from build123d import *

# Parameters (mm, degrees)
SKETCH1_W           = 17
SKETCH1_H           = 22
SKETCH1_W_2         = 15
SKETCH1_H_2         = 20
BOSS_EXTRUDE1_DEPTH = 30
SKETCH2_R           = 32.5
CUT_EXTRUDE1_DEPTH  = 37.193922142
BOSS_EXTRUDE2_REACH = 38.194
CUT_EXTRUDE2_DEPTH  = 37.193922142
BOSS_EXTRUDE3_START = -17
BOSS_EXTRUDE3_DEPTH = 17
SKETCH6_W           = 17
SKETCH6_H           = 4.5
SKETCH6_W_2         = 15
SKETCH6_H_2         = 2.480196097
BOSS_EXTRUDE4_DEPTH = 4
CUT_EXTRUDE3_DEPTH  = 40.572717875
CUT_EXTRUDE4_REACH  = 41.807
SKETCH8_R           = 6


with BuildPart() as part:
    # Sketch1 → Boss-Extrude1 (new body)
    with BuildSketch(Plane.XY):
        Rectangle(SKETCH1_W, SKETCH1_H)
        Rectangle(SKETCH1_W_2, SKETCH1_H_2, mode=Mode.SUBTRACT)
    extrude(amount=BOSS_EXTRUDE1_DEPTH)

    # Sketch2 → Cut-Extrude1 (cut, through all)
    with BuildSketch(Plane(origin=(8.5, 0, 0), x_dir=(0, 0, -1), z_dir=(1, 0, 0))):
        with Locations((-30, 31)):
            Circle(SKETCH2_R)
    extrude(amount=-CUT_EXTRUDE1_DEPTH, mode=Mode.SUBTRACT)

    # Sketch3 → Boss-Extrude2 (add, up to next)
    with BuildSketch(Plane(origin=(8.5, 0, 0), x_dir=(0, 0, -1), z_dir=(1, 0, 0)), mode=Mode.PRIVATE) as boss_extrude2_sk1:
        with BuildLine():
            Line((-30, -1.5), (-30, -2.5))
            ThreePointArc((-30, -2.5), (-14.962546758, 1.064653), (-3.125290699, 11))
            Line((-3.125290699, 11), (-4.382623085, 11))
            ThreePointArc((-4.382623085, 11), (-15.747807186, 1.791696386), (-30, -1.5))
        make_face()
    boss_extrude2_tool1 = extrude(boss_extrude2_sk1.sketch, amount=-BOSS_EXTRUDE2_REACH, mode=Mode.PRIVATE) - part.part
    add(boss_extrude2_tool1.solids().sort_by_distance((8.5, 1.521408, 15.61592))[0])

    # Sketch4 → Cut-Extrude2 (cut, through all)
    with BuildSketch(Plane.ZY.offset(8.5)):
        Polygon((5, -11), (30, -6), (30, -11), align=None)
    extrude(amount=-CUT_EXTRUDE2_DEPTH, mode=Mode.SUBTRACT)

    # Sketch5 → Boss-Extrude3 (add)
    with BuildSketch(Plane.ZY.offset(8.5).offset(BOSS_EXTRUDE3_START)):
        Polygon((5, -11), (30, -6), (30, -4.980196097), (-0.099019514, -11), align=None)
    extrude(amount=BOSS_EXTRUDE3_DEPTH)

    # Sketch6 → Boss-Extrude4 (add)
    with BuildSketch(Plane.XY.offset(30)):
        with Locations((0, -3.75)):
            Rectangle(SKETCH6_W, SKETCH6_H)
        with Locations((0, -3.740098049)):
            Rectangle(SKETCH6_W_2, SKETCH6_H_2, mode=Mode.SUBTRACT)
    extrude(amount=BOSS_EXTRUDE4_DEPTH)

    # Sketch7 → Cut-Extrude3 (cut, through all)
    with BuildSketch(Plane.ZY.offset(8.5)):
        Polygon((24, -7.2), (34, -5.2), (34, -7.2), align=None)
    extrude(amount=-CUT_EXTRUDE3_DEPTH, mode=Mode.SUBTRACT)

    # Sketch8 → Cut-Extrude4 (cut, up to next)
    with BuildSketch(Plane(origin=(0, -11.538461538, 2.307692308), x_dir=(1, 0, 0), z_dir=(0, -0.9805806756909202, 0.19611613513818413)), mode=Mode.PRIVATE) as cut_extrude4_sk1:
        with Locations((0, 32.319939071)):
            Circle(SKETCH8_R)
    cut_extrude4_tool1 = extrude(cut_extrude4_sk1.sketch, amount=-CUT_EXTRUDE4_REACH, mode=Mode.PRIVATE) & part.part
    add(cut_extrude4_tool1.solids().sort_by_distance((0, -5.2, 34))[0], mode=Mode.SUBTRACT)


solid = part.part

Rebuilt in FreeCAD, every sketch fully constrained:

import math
import FreeCAD as App
import Part
import Sketcher

V = App.Vector


def add_polygon(sketch, points):
    """Adds a closed chain of lines whose ends are joined by coincident constraints."""
    first, n = sketch.GeometryCount, len(points)
    for a, b in zip(points, points[1:] + points[:1]):
        sketch.addGeometry(Part.LineSegment(App.Vector(*a, 0), App.Vector(*b, 0)), False)
    for i in range(n):
        sketch.addConstraint(Sketcher.Constraint("Coincident", first + i, 2, first + (i + 1) % n, 1))

doc = App.newDocument("Part")
params = doc.addObject("Spreadsheet::Sheet", "Params")
for row, (alias, value) in enumerate([
    ("sketch1_width", "17 mm"),
    ("sketch1_width2", "15 mm"),
    ("sketch1_height", "22 mm"),
    ("sketch1_height2", "20 mm"),
    ("pad1_length", "30 mm"),
    ("sketch2_diameter", "65 mm"),
    ("sketch3_radius", "33.5 mm"),
    ("sketch3_radius2", "32.5 mm"),
    ("pad2_length", "16 mm"),
    ("sketch4_width", "5 mm"),
    ("sketch4_height", "25 mm"),
    ("pad3_length", "17 mm"),
    ("sketch6_width", "17 mm"),
    ("sketch6_width2", "15 mm"),
    ("sketch6_height", "4.5 mm"),
    ("pad4_length", "4 mm"),
    ("sketch7_width", "2 mm"),
    ("sketch7_height", "10 mm"),
    ("sketch8_diameter", "12 mm"),
], start=1):
    params.set(f"A{row}", alias)
    params.set(f"B{row}", "=" + value)
    params.setAlias(f"B{row}", alias)

body = doc.addObject("PartDesign::Body", "Body")

sketch1 = doc.addObject("Sketcher::SketchObject", "Sketch")
body.addObject(sketch1)
sketch1.AttachmentSupport = (doc.XY_Plane, [""])
sketch1.MapMode = "FlatFace"
add_polygon(sketch1, [(-8, 11), (-8, -11), (8, -11), (8, 11)])
add_polygon(sketch1, [(8, -10), (-8, -10), (-8, 10), (8, 10)])
sketch1.addConstraint([
    Sketcher.Constraint("Vertical", 0),
    Sketcher.Constraint("Horizontal", 1),
    Sketcher.Constraint("Vertical", 2),
    Sketcher.Constraint("Horizontal", 3),
    Sketcher.Constraint("Horizontal", 4),
    Sketcher.Constraint("Vertical", 5),
    Sketcher.Constraint("Horizontal", 6),
    Sketcher.Constraint("Vertical", 7),
    Sketcher.Constraint("Symmetric", 0, 2, 2, 2, -1, 1),
    Sketcher.Constraint("Symmetric", 4, 2, 6, 2, -1, 1),
    Sketcher.Constraint("DistanceX", 1, 1, 1, 2, 17.0),
    Sketcher.Constraint("DistanceX", 4, 2, 4, 1, 15.0),
    Sketcher.Constraint("DistanceY", 0, 2, 0, 1, 22.0),
    Sketcher.Constraint("DistanceY", 5, 1, 5, 2, 20.0),
])
sketch1.setExpression("Constraints[18]", "Params.sketch1_width")
sketch1.setExpression("Constraints[19]", "Params.sketch1_width2")
sketch1.setExpression("Constraints[20]", "Params.sketch1_height")
sketch1.setExpression("Constraints[21]", "Params.sketch1_height2")
pad1 = doc.addObject("PartDesign::Pad", "Pad")
body.addObject(pad1)
pad1.Profile = sketch1
pad1.setExpression("Length", "Params.pad1_length")

sketch2 = doc.addObject("Sketcher::SketchObject", "Sketch001")
body.addObject(sketch2)
sketch2.AttachmentSupport = (doc.YZ_Plane, [""])
sketch2.MapMode = "FlatFace"
sketch2.AttachmentOffset = App.Placement(V(0, 0, 8.5), App.Rotation())
sketch2.addGeometry(Part.Circle(V(31, 30, 0), V(0, 0, 1), 32), False)
sketch2.addConstraint([
    Sketcher.Constraint("Diameter", 0, 65.0),
    Sketcher.Constraint("DistanceX", -1, 1, 0, 3, 31.0),
    Sketcher.Constraint("DistanceY", -1, 1, 0, 3, 30.0),
])
sketch2.setExpression("Constraints[0]", "Params.sketch2_diameter")
pocket1 = doc.addObject("PartDesign::Pocket", "Pocket")
body.addObject(pocket1)
pocket1.Profile = sketch2
pocket1.Type = "ThroughAll"

sketch3 = doc.addObject("Sketcher::SketchObject", "Sketch002")
body.addObject(sketch3)
sketch3.AttachmentSupport = (doc.YZ_Plane, [""])
sketch3.MapMode = "FlatFace"
sketch3.AttachmentOffset = App.Placement(V(0, 0, 8.5), App.Rotation())
sketch3.addGeometry([
    Part.LineSegment(V(-1.5, 30, 0), V(-2.5, 30, 0)),
    Part.ArcOfCircle(Part.Circle(V(31, 30, 0), V(0, 0, 1), 33.5), math.radians(180), math.radians(233)),
    Part.LineSegment(V(11, 3.1, 0), V(11, 4.4, 0)),
    Part.ArcOfCircle(Part.Circle(V(31, 30, 0), V(0, 0, 1), 32.5), math.radians(180), math.radians(232)),
], False)
sketch3.addConstraint([
    Sketcher.Constraint("Coincident", 0, 2, 1, 1),
    Sketcher.Constraint("Coincident", 1, 2, 2, 1),
    Sketcher.Constraint("Coincident", 2, 2, 3, 2),
    Sketcher.Constraint("Coincident", 3, 1, 0, 1),
    Sketcher.Constraint("Horizontal", 0),
    Sketcher.Constraint("Vertical", 2),
    Sketcher.Constraint("Coincident", 3, 3, 1, 3),
    Sketcher.Constraint("Horizontal", 3, 3, 0, 2),
    Sketcher.Constraint("Radius", 1, 33.5),
    Sketcher.Constraint("Radius", 3, 32.5),
    Sketcher.Constraint("DistanceX", -1, 1, 1, 3, 31.0),
    Sketcher.Constraint("DistanceY", -1, 1, 1, 3, 30.0),
    Sketcher.Constraint("DistanceX", -1, 1, 1, 2, 11.0),
])
sketch3.setExpression("Constraints[8]", "Params.sketch3_radius")
sketch3.setExpression("Constraints[9]", "Params.sketch3_radius2")
pad2 = doc.addObject("PartDesign::Pad", "Pad001")
body.addObject(pad2)
pad2.Profile = sketch3
pad2.setExpression("Length", "Params.pad2_length")
pad2.Reversed = True

sketch4 = doc.addObject("Sketcher::SketchObject", "Sketch003")
body.addObject(sketch4)
sketch4.AttachmentSupport = (doc.YZ_Plane, [""])
sketch4.MapMode = "FlatFace"
sketch4.AttachmentOffset = App.Placement(V(0, 0, -8.5), App.Rotation())
add_polygon(sketch4, [(-6, 30), (-11, 5), (-11, 30)])
sketch4.addConstraint([
    Sketcher.Constraint("Vertical", 1),
    Sketcher.Constraint("Horizontal", 2),
    Sketcher.Constraint("DistanceX", 2, 1, 2, 2, 5.0),
    Sketcher.Constraint("DistanceY", 1, 1, 1, 2, 25.0),
    Sketcher.Constraint("DistanceX", 0, 2, -1, 1, 11.0),
    Sketcher.Constraint("DistanceY", -1, 1, 0, 2, 5.0),
])
sketch4.setExpression("Constraints[5]", "Params.sketch4_width")
sketch4.setExpression("Constraints[6]", "Params.sketch4_height")
pocket2 = doc.addObject("PartDesign::Pocket", "Pocket001")
body.addObject(pocket2)
pocket2.Profile = sketch4
pocket2.Type = "ThroughAll"
pocket2.Reversed = True

sketch5 = doc.addObject("Sketcher::SketchObject", "Sketch004")
body.addObject(sketch5)
sketch5.AttachmentSupport = (doc.YZ_Plane, [""])
sketch5.MapMode = "FlatFace"
sketch5.AttachmentOffset = App.Placement(V(0, 0, 8.5), App.Rotation())
add_polygon(sketch5, [(-11, 5), (-6, 30), (-5, 30), (-11, -0.1)])
sketch5.addConstraint([
    Sketcher.Constraint("Horizontal", 1),
    Sketcher.Constraint("Vertical", 3),
    Sketcher.Constraint("Parallel", 0, 2),
    Sketcher.Constraint("DistanceX", 0, 2, -1, 1, 6.0),
    Sketcher.Constraint("DistanceY", -1, 1, 0, 2, 30.0),
    Sketcher.Constraint("DistanceX", 2, 2, -1, 1, 11.0),
    Sketcher.Constraint("DistanceY", -1, 1, 3, 2, 5.0),
    Sketcher.Constraint("DistanceY", 3, 1, 3, 2, 5.09902),
])
pad3 = doc.addObject("PartDesign::Pad", "Pad002")
body.addObject(pad3)
pad3.Profile = sketch5
pad3.setExpression("Length", "Params.pad3_length")
pad3.Reversed = True

sketch6 = doc.addObject("Sketcher::SketchObject", "Sketch005")
body.addObject(sketch6)
sketch6.AttachmentSupport = (doc.XY_Plane, [""])
sketch6.MapMode = "FlatFace"
sketch6.AttachmentOffset = App.Placement(V(0, 0, 30), App.Rotation())
add_polygon(sketch6, [(-8.5, -1.5), (-8.5, -6), (8.5, -6), (8.5, -1.5)])
add_polygon(sketch6, [(7.5, -5), (-7.5, -5), (-7.5, -2.5), (7.5, -2.5)])
sketch6.addConstraint([
    Sketcher.Constraint("Vertical", 0),
    Sketcher.Constraint("Horizontal", 1),
    Sketcher.Constraint("Vertical", 2),
    Sketcher.Constraint("Horizontal", 3),
    Sketcher.Constraint("Horizontal", 4),
    Sketcher.Constraint("Vertical", 5),
    Sketcher.Constraint("Horizontal", 6),
    Sketcher.Constraint("Vertical", 7),
    Sketcher.Constraint("DistanceX", 1, 1, 1, 2, 17.0),
    Sketcher.Constraint("DistanceX", 4, 2, 4, 1, 15.0),
    Sketcher.Constraint("DistanceY", 0, 2, 0, 1, 4.5),
    Sketcher.Constraint("DistanceY", 0, 2, -1, 1, 6.0),
    Sketcher.Constraint("DistanceX", 0, 2, 4, 2, 1.0),
    Sketcher.Constraint("DistanceY", 5, 2, 3, 2, 1.0),
    Sketcher.Constraint("DistanceX", 0, 2, -1, 1, 8.5),
    Sketcher.Constraint("DistanceY", 5, 1, 5, 2, 2.480196),
])
sketch6.setExpression("Constraints[16]", "Params.sketch6_width")
sketch6.setExpression("Constraints[17]", "Params.sketch6_width2")
sketch6.setExpression("Constraints[18]", "Params.sketch6_height")
pad4 = doc.addObject("PartDesign::Pad", "Pad003")
body.addObject(pad4)
pad4.Profile = sketch6
pad4.setExpression("Length", "Params.pad4_length")

sketch7 = doc.addObject("Sketcher::SketchObject", "Sketch006")
body.addObject(sketch7)
sketch7.AttachmentSupport = (doc.YZ_Plane, [""])
sketch7.MapMode = "FlatFace"
sketch7.AttachmentOffset = App.Placement(V(0, 0, -8.5), App.Rotation())
add_polygon(sketch7, [(-5.2, 34), (-7.2, 24), (-7.2, 34)])
sketch7.addConstraint([
    Sketcher.Constraint("Vertical", 1),
    Sketcher.Constraint("Horizontal", 2),
    Sketcher.Constraint("DistanceX", 2, 1, 2, 2, 2.0),
    Sketcher.Constraint("DistanceY", 1, 1, 1, 2, 10.0),
    Sketcher.Constraint("DistanceY", -1, 1, 0, 2, 24.0),
    Sketcher.Constraint("DistanceX", 0, 2, -1, 1, 7.2),
])
sketch7.setExpression("Constraints[5]", "Params.sketch7_width")
sketch7.setExpression("Constraints[6]", "Params.sketch7_height")
pocket3 = doc.addObject("PartDesign::Pocket", "Pocket002")
body.addObject(pocket3)
pocket3.Profile = sketch7
pocket3.Type = "ThroughAll"
pocket3.Reversed = True

sketch8 = doc.addObject("Sketcher::SketchObject", "Sketch007")
body.addObject(sketch8)
sketch8.Placement = App.Placement(V(0, -11.538462, 2.307692), App.Rotation(V(1, 0, 0), V(0, 0.196116135, 0.980580676), V(0, -0.980580676, 0.196116135), "ZXY"))
sketch8.addGeometry(Part.Circle(V(0, 32, 0), V(0, 0, 1), 6), False)
sketch8.addConstraint([
    Sketcher.Constraint("PointOnObject", 0, 3, -2),
    Sketcher.Constraint("Diameter", 0, 12.0),
    Sketcher.Constraint("DistanceY", -1, 1, 0, 3, 32.319939),
])
sketch8.setExpression("Constraints[1]", "Params.sketch8_diameter")
pocket4 = doc.addObject("PartDesign::Pocket", "Pocket003")
body.addObject(pocket4)
pocket4.Profile = sketch8
pocket4.Type = "UpToFirst"

doc.recompute()
